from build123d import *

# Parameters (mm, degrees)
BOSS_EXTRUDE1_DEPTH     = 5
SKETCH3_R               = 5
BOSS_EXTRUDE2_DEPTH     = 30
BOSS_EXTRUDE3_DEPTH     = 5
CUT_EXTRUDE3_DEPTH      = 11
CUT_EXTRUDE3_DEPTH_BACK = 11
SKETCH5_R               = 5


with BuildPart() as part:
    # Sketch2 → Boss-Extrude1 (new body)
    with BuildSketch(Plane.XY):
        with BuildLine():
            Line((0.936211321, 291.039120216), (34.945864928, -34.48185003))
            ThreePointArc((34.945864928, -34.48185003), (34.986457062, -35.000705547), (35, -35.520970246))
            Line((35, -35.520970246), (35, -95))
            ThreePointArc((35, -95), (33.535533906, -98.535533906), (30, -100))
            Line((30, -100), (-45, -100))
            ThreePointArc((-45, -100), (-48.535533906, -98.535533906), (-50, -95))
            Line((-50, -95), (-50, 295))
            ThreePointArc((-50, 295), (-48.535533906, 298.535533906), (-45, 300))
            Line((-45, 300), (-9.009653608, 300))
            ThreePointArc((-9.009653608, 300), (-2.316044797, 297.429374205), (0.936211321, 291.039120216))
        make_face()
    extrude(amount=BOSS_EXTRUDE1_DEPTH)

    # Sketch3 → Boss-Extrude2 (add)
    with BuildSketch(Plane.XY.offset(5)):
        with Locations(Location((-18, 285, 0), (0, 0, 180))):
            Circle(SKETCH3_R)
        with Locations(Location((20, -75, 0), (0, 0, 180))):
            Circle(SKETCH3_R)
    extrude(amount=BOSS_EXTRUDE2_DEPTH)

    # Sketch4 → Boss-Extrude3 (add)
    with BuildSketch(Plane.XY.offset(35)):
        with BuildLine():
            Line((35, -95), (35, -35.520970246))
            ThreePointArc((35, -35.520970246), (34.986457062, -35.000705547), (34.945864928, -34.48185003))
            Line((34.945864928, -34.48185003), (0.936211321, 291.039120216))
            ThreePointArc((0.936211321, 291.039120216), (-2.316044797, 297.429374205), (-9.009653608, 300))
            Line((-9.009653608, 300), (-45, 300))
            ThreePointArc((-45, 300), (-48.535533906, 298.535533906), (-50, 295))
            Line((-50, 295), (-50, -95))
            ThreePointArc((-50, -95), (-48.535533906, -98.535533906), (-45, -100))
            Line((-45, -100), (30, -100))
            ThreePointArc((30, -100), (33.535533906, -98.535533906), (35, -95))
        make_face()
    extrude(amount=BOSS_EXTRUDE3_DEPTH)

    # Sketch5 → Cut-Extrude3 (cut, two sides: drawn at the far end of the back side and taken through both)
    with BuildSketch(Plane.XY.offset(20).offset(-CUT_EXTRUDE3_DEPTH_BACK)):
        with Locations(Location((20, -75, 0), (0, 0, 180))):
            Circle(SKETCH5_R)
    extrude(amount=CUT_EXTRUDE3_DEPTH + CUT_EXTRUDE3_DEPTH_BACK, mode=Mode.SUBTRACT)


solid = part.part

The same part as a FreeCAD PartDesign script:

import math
import FreeCAD as App
import Part
import Sketcher
from FreeCAD import Vector

doc = App.newDocument("Part")
body = doc.addObject("PartDesign::Body", "Body")

# Sketch on XY plane
sketch1 = doc.addObject("Sketcher::SketchObject", "Sketch")
body.addObject(sketch1)
sketch1.AttachmentSupport = (doc.XY_Plane, [""])
sketch1.MapMode = "FlatFace"
sketch1.addGeometry(Part.LineSegment(Vector(34.9, -34.5, 0), Vector(0.9, 291, 0)), False)
sketch1.addGeometry(Part.ArcOfCircle(Part.Circle(Vector(-9, 290, 0), Vector(0, 0, 1), 10), math.radians(6), math.radians(90)), False)
sketch1.addGeometry(Part.LineSegment(Vector(-9, 300, 0), Vector(-45, 300, 0)), False)
sketch1.addGeometry(Part.ArcOfCircle(Part.Circle(Vector(-45, 295, 0), Vector(0, 0, 1), 5), math.radians(90), math.radians(180)), False)
sketch1.addGeometry(Part.LineSegment(Vector(-50, 295, 0), Vector(-50, -95, 0)), False)
sketch1.addGeometry(Part.ArcOfCircle(Part.Circle(Vector(-45, -95, 0), Vector(0, 0, 1), 5), math.radians(180), math.radians(270)), False)
sketch1.addGeometry(Part.LineSegment(Vector(-45, -100, 0), Vector(30, -100, 0)), False)
sketch1.addGeometry(Part.ArcOfCircle(Part.Circle(Vector(30, -95, 0), Vector(0, 0, 1), 5), math.radians(-90), math.radians(0)), False)
sketch1.addGeometry(Part.LineSegment(Vector(35, -95, 0), Vector(35, -35.5, 0)), False)
sketch1.addGeometry(Part.ArcOfCircle(Part.Circle(Vector(25, -35.5, 0), Vector(0, 0, 1), 10), math.radians(0), math.radians(5.96)), False)
sketch1.addConstraint(Sketcher.Constraint("Tangent", 0, 2, 1, 1))
sketch1.addConstraint(Sketcher.Constraint("Tangent", 1, 2, 2, 1))
sketch1.addConstraint(Sketcher.Constraint("Tangent", 2, 2, 3, 1))
sketch1.addConstraint(Sketcher.Constraint("Tangent", 3, 2, 4, 1))
sketch1.addConstraint(Sketcher.Constraint("Tangent", 4, 2, 5, 1))
sketch1.addConstraint(Sketcher.Constraint("Tangent", 5, 2, 6, 1))
sketch1.addConstraint(Sketcher.Constraint("Tangent", 6, 2, 7, 1))
sketch1.addConstraint(Sketcher.Constraint("Tangent", 7, 2, 8, 1))
sketch1.addConstraint(Sketcher.Constraint("Tangent", 8, 2, 9, 1))
sketch1.addConstraint(Sketcher.Constraint("Tangent", 9, 2, 0, 1))
sketch1.addConstraint(Sketcher.Constraint("Horizontal", 2))
sketch1.addConstraint(Sketcher.Constraint("Vertical", 4))
sketch1.addConstraint(Sketcher.Constraint("Horizontal", 6))
sketch1.addConstraint(Sketcher.Constraint("Vertical", 8))
sketch1.addConstraint(Sketcher.Constraint("Equal", 3, 5))
sketch1.addConstraint(Sketcher.Constraint("Equal", 5, 7))
sketch1.addConstraint(Sketcher.Constraint("Equal", 1, 9))
sketch1.addConstraint(Sketcher.Constraint("Radius", 1, 10.0))
sketch1.addConstraint(Sketcher.Constraint("Radius", 3, 5.0))
sketch1.addConstraint(Sketcher.Constraint("DistanceX", 6, 1, 6, 2, 75.0))
sketch1.addConstraint(Sketcher.Constraint("DistanceY", 4, 2, 4, 1, 390.0))
sketch1.addConstraint(Sketcher.Constraint("DistanceY", -1, 1, 1, 3, 290.0))
sketch1.addConstraint(Sketcher.Constraint("DistanceX", 3, 3, -1, 1, 45.0))
sketch1.addConstraint(Sketcher.Constraint("DistanceY", 8, 1, 8, 2, 59.47903))
sketch1.addConstraint(Sketcher.Constraint("DistanceX", 2, 2, 2, 1, 35.990346))
pad1 = doc.addObject("PartDesign::Pad", "Pad")
body.addObject(pad1)
pad1.Profile = sketch1
pad1.Length = 5

# Sketch on XY plane
sketch2 = doc.addObject("Sketcher::SketchObject", "Sketch001")
body.addObject(sketch2)
sketch2.AttachmentSupport = (doc.XY_Plane, [""])
sketch2.MapMode = "FlatFace"
sketch2.AttachmentOffset = App.Placement(Vector(0, 0, 5), App.Rotation())
sketch2.addGeometry(Part.Circle(Vector(-18, 285, 0), Vector(0, 0, 1), 5), False)
sketch2.addGeometry(Part.Circle(Vector(20, -75, 0), Vector(0, 0, 1), 5), False)
sketch2.addConstraint(Sketcher.Constraint("Equal", 0, 1))
sketch2.addConstraint(Sketcher.Constraint("Diameter", 0, 10.0))
sketch2.addConstraint(Sketcher.Constraint("DistanceX", 0, 3, -1, 1, 18.0))
sketch2.addConstraint(Sketcher.Constraint("DistanceY", -1, 1, 0, 3, 285.0))
sketch2.addConstraint(Sketcher.Constraint("DistanceX", -1, 1, 1, 3, 20.0))
sketch2.addConstraint(Sketcher.Constraint("DistanceY", 1, 3, -1, 1, 75.0))
pad2 = doc.addObject("PartDesign::Pad", "Pad001")
body.addObject(pad2)
pad2.Profile = sketch2
pad2.Length = 30

# Sketch on XY plane
sketch3 = doc.addObject("Sketcher::SketchObject", "Sketch002")
body.addObject(sketch3)
sketch3.AttachmentSupport = (doc.XY_Plane, [""])
sketch3.MapMode = "FlatFace"
sketch3.AttachmentOffset = App.Placement(Vector(0, 0, 35), App.Rotation())
sketch3.addGeometry(Part.LineSegment(Vector(35, -95, 0), Vector(35, -35.5, 0)), False)
sketch3.addGeometry(Part.ArcOfCircle(Part.Circle(Vector(25, -35.5, 0), Vector(0, 0, 1), 10), math.radians(0), math.radians(5.96)), False)
sketch3.addGeometry(Part.LineSegment(Vector(34.9, -34.5, 0), Vector(0.9, 291, 0)), False)
sketch3.addGeometry(Part.ArcOfCircle(Part.Circle(Vector(-9, 290, 0), Vector(0, 0, 1), 10), math.radians(6), math.radians(90)), False)
sketch3.addGeometry(Part.LineSegment(Vector(-9, 300, 0), Vector(-45, 300, 0)), False)
sketch3.addGeometry(Part.ArcOfCircle(Part.Circle(Vector(-45, 295, 0), Vector(0, 0, 1), 5), math.radians(90), math.radians(180)), False)
sketch3.addGeometry(Part.LineSegment(Vector(-50, 295, 0), Vector(-50, -95, 0)), False)
sketch3.addGeometry(Part.ArcOfCircle(Part.Circle(Vector(-45, -95, 0), Vector(0, 0, 1), 5), math.radians(180), math.radians(270)), False)
sketch3.addGeometry(Part.LineSegment(Vector(-45, -100, 0), Vector(30, -100, 0)), False)
sketch3.addGeometry(Part.ArcOfCircle(Part.Circle(Vector(30, -95, 0), Vector(0, 0, 1), 5), math.radians(-90), math.radians(0)), False)
sketch3.addConstraint(Sketcher.Constraint("Tangent", 0, 2, 1, 1))
sketch3.addConstraint(Sketcher.Constraint("Tangent", 1, 2, 2, 1))
sketch3.addConstraint(Sketcher.Constraint("Tangent", 2, 2, 3, 1))
sketch3.addConstraint(Sketcher.Constraint("Tangent", 3, 2, 4, 1))
sketch3.addConstraint(Sketcher.Constraint("Tangent", 4, 2, 5, 1))
sketch3.addConstraint(Sketcher.Constraint("Tangent", 5, 2, 6, 1))
sketch3.addConstraint(Sketcher.Constraint("Tangent", 6, 2, 7, 1))
sketch3.addConstraint(Sketcher.Constraint("Tangent", 7, 2, 8, 1))
sketch3.addConstraint(Sketcher.Constraint("Tangent", 8, 2, 9, 1))
sketch3.addConstraint(Sketcher.Constraint("Tangent", 9, 2, 0, 1))
sketch3.addConstraint(Sketcher.Constraint("Vertical", 0))
sketch3.addConstraint(Sketcher.Constraint("Horizontal", 4))
sketch3.addConstraint(Sketcher.Constraint("Vertical", 6))
sketch3.addConstraint(Sketcher.Constraint("Horizontal", 8))
sketch3.addConstraint(Sketcher.Constraint("Equal", 1, 3))
sketch3.addConstraint(Sketcher.Constraint("Equal", 5, 7))
sketch3.addConstraint(Sketcher.Constraint("Equal", 7, 9))
sketch3.addConstraint(Sketcher.Constraint("Radius", 1, 10.0))
sketch3.addConstraint(Sketcher.Constraint("Radius", 5, 5.0))
sketch3.addConstraint(Sketcher.Constraint("DistanceX", 8, 1, 8, 2, 75.0))
sketch3.addConstraint(Sketcher.Constraint("DistanceY", 6, 2, 6, 1, 390.0))
sketch3.addConstraint(Sketcher.Constraint("DistanceX", -1, 1, 1, 3, 25.0))
sketch3.addConstraint(Sketcher.Constraint("DistanceY", -1, 1, 3, 3, 290.0))
sketch3.addConstraint(Sketcher.Constraint("DistanceY", 0, 1, 0, 2, 59.47903))
sketch3.addConstraint(Sketcher.Constraint("DistanceX", 4, 2, 4, 1, 35.990346))
pad3 = doc.addObject("PartDesign::Pad", "Pad002")
body.addObject(pad3)
pad3.Profile = sketch3
pad3.Length = 5

# Sketch on XY plane
sketch4 = doc.addObject("Sketcher::SketchObject", "Sketch003")
body.addObject(sketch4)
sketch4.AttachmentSupport = (doc.XY_Plane, [""])
sketch4.MapMode = "FlatFace"
sketch4.AttachmentOffset = App.Placement(Vector(0, 0, 20), App.Rotation())
sketch4.addGeometry(Part.Circle(Vector(20, -75, 0), Vector(0, 0, 1), 5), False)
sketch4.addConstraint(Sketcher.Constraint("Diameter", 0, 10.0))
sketch4.addConstraint(Sketcher.Constraint("DistanceX", -1, 1, 0, 3, 20.0))
sketch4.addConstraint(Sketcher.Constraint("DistanceY", 0, 3, -1, 1, 75.0))
pocket1 = doc.addObject("PartDesign::Pocket", "Pocket")
body.addObject(pocket1)
pocket1.Profile = sketch4
pocket1.Type = "TwoLengths"
pocket1.Length = 11
pocket1.Length2 = 11
pocket1.Reversed = True

doc.recompute()
